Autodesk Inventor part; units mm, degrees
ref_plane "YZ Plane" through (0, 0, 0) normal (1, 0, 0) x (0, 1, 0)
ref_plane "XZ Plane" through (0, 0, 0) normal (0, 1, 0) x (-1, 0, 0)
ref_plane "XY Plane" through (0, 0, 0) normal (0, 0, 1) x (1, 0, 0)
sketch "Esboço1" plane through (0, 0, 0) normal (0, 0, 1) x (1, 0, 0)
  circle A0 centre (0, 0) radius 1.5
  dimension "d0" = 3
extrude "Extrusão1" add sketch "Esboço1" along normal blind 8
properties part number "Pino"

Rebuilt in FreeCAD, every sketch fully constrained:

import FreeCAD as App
import Part
import Sketcher

doc = App.newDocument("Part")
params = doc.addObject("Spreadsheet::Sheet", "Params")
for row, (alias, value) in enumerate([
    ("sketch1_diameter", "3 mm"),
    ("pad1_length", "8 mm"),
], start=1):
    params.set(f"A{row}", alias)
    params.set(f"B{row}", "=" + value)
    params.setAlias(f"B{row}", alias)

body = doc.addObject("PartDesign::Body", "Body")

# Sketch on XY plane
sketch1 = body.newObject("Sketcher::SketchObject", "Sketch")
sketch1.AttachmentSupport = (doc.getObject("XY_Plane"), [""])
sketch1.MapMode = "FlatFace"
sketch1.addGeometry(Part.Circle(App.Vector(0, 0, 0), App.Vector(0, 0, 1), 1.5), False)
sketch1.addConstraint([
    Sketcher.Constraint("Coincident", 0, 3, -1, 1),
    Sketcher.Constraint("Diameter", 0, 3.0),
])
sketch1.setExpression("Constraints[1]", "Params.sketch1_diameter")
pad1 = body.newObject("PartDesign::Pad", "Pad")
pad1.Profile = sketch1
pad1.setExpression("Length", "Params.pad1_length")

doc.recompute()
